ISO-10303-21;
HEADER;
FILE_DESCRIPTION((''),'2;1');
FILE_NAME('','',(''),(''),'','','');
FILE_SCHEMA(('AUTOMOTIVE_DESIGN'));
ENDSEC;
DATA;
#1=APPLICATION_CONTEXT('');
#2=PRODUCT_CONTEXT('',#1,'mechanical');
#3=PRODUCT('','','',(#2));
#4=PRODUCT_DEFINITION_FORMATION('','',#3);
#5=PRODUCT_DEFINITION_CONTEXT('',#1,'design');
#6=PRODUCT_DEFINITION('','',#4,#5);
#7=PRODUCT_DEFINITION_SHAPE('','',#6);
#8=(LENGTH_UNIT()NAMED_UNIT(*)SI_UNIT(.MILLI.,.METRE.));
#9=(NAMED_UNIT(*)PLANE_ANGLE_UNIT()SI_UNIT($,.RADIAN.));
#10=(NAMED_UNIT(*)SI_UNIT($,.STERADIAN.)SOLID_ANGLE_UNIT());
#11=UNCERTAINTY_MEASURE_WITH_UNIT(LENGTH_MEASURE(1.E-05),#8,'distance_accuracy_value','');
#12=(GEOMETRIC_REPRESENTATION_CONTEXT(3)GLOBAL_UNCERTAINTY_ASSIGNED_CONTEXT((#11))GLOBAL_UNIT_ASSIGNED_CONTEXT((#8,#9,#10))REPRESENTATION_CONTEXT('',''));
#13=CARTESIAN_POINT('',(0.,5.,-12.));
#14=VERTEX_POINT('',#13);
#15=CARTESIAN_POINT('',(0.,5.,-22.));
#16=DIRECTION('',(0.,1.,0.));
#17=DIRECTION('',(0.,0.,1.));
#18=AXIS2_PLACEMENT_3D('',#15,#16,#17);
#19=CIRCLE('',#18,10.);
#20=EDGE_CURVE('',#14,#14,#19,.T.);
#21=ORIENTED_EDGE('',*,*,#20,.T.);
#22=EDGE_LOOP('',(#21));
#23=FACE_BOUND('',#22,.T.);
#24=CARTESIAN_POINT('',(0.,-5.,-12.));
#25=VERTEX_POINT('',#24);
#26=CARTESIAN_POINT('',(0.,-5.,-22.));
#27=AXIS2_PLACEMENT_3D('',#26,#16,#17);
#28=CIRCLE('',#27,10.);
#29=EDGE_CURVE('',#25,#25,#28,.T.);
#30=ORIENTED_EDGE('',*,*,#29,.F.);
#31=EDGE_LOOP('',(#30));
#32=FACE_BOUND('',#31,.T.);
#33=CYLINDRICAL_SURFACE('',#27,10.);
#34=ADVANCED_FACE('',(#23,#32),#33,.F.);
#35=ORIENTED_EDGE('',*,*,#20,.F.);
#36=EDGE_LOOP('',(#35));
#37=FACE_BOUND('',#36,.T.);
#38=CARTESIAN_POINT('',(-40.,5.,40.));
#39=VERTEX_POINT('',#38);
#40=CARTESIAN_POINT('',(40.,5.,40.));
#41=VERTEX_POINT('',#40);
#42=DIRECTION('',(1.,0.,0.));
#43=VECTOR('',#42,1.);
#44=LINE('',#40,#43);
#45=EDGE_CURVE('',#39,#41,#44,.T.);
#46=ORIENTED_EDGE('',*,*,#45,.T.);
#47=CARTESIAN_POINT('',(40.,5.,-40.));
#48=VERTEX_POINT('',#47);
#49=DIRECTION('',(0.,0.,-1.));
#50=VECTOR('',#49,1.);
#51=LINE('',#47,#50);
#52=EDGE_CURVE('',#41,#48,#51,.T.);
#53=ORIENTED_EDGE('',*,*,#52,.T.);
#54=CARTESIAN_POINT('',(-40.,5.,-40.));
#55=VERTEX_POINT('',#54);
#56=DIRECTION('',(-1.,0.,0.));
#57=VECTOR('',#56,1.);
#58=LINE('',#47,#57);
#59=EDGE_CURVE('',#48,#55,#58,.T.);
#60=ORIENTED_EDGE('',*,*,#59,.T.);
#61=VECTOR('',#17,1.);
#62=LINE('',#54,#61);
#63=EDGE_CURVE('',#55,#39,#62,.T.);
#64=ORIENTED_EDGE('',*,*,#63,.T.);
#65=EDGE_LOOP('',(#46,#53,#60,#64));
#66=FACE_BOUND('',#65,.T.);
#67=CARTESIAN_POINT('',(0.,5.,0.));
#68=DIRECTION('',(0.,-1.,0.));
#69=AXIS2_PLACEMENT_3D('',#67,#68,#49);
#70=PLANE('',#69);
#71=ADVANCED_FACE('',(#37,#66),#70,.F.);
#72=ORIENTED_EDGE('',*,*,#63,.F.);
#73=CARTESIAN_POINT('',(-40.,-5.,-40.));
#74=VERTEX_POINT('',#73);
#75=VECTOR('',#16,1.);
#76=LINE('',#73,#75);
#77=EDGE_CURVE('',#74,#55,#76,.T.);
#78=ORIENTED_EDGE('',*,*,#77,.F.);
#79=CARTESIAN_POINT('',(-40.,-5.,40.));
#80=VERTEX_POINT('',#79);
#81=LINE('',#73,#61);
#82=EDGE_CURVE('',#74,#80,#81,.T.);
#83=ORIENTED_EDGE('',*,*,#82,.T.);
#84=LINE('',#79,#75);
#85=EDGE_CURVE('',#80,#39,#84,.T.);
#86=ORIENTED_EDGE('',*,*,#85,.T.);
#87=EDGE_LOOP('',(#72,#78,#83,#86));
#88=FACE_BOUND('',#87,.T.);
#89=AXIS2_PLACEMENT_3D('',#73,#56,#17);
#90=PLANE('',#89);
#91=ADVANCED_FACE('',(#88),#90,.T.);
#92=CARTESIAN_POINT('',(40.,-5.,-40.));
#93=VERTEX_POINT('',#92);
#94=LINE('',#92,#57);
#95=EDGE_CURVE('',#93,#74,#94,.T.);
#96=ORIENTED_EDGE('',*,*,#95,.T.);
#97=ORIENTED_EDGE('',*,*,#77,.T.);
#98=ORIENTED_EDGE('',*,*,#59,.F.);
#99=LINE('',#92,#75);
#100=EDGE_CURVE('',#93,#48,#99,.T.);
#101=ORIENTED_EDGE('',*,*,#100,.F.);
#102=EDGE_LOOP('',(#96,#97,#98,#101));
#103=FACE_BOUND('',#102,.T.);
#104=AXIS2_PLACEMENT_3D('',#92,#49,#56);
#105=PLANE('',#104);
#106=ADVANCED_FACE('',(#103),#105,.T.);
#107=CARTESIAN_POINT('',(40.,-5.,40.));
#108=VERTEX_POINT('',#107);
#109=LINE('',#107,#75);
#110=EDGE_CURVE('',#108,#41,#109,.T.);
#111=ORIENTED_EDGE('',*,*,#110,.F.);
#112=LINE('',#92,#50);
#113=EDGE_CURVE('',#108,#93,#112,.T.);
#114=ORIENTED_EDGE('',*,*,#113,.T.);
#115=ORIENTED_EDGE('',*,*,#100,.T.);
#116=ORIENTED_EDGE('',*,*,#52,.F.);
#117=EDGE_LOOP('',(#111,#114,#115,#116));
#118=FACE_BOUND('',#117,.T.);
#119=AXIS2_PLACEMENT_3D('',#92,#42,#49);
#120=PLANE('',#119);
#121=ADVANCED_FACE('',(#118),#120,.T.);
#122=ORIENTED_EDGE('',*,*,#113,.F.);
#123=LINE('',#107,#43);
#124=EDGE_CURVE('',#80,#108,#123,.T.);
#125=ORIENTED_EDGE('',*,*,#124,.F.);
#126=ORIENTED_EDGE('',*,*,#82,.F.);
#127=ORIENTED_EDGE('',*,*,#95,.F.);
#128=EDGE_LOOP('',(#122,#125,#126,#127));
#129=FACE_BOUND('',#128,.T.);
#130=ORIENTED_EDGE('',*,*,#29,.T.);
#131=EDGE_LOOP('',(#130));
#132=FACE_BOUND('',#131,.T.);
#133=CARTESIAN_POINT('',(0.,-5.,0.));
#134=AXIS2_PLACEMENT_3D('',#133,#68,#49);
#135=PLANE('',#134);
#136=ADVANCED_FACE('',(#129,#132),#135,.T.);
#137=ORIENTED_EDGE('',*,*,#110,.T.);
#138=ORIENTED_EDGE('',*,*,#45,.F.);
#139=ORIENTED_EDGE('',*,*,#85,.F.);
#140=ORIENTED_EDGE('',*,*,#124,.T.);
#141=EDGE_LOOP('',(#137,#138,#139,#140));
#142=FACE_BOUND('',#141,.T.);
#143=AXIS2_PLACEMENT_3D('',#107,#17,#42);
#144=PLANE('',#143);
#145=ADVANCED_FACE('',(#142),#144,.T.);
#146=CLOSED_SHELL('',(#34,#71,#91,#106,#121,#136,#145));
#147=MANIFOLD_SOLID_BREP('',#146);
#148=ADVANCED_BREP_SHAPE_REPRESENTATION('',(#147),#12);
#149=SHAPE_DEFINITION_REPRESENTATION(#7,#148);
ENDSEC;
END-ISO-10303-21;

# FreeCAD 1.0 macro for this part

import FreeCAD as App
import Part
import Sketcher

V = App.Vector
Q = App.Units.Quantity


def add_polygon(sketch, points):
    """Adds a closed chain of lines whose ends are joined by coincident constraints."""
    first, n = sketch.GeometryCount, len(points)
    for a, b in zip(points, points[1:] + points[:1]):
        sketch.addGeometry(Part.LineSegment(App.Vector(*a, 0), App.Vector(*b, 0)), False)
    for i in range(n):
        sketch.addConstraint(Sketcher.Constraint("Coincident", first + i, 2, first + (i + 1) % n, 1))

doc = App.newDocument("Part")
body = doc.addObject("PartDesign::Body", "Body")

# Sketch on XZ plane
sketch1 = doc.addObject("Sketcher::SketchObject", "Sketch")
body.addObject(sketch1)
sketch1.AttachmentSupport = (doc.XZ_Plane, [""])
sketch1.MapMode = "FlatFace"
add_polygon(sketch1, [(-40, -40), (-40, 40), (40, 40), (40, -40)])  # lines 0-3
sketch1.addConstraint(Sketcher.Constraint("Vertical", 0))
sketch1.addConstraint(Sketcher.Constraint("Horizontal", 1))
sketch1.addConstraint(Sketcher.Constraint("Vertical", 2))
sketch1.addConstraint(Sketcher.Constraint("Horizontal", 3))
sketch1.addConstraint(Sketcher.Constraint("Symmetric", 0, 2, 2, 2, -1, 1))
sketch1.addConstraint(Sketcher.Constraint("Equal", 3, 0))
sketch1.addConstraint(Sketcher.Constraint("DistanceX", 1, 1, 1, 2, Q("80 mm")))
pad1 = doc.addObject("PartDesign::Pad", "Pad")
body.addObject(pad1)
pad1.Profile = sketch1
pad1.Length = 10
pad1.Midplane = True

# Sketch on XZ plane
sketch2 = doc.addObject("Sketcher::SketchObject", "Sketch001")
body.addObject(sketch2)
sketch2.AttachmentSupport = (doc.XZ_Plane, [""])
sketch2.MapMode = "FlatFace"
sketch2.AttachmentOffset = App.Placement(V(0, 0, -5), App.Rotation())
sketch2.addGeometry(Part.Circle(V(0, -22, 0), V(0, 0, 1), 10), False)
sketch2.addConstraint(Sketcher.Constraint("PointOnObject", 0, 3, -2))
sketch2.addConstraint(Sketcher.Constraint("Diameter", 0, Q("20 mm")))
sketch2.addConstraint(Sketcher.Constraint("DistanceY", 0, 3, -1, 1, Q("22 mm")))
pocket1 = doc.addObject("PartDesign::Pocket", "Pocket")
body.addObject(pocket1)
pocket1.Profile = sketch2
pocket1.Type = "ThroughAll"
pocket1.Reversed = True

doc.recompute()
